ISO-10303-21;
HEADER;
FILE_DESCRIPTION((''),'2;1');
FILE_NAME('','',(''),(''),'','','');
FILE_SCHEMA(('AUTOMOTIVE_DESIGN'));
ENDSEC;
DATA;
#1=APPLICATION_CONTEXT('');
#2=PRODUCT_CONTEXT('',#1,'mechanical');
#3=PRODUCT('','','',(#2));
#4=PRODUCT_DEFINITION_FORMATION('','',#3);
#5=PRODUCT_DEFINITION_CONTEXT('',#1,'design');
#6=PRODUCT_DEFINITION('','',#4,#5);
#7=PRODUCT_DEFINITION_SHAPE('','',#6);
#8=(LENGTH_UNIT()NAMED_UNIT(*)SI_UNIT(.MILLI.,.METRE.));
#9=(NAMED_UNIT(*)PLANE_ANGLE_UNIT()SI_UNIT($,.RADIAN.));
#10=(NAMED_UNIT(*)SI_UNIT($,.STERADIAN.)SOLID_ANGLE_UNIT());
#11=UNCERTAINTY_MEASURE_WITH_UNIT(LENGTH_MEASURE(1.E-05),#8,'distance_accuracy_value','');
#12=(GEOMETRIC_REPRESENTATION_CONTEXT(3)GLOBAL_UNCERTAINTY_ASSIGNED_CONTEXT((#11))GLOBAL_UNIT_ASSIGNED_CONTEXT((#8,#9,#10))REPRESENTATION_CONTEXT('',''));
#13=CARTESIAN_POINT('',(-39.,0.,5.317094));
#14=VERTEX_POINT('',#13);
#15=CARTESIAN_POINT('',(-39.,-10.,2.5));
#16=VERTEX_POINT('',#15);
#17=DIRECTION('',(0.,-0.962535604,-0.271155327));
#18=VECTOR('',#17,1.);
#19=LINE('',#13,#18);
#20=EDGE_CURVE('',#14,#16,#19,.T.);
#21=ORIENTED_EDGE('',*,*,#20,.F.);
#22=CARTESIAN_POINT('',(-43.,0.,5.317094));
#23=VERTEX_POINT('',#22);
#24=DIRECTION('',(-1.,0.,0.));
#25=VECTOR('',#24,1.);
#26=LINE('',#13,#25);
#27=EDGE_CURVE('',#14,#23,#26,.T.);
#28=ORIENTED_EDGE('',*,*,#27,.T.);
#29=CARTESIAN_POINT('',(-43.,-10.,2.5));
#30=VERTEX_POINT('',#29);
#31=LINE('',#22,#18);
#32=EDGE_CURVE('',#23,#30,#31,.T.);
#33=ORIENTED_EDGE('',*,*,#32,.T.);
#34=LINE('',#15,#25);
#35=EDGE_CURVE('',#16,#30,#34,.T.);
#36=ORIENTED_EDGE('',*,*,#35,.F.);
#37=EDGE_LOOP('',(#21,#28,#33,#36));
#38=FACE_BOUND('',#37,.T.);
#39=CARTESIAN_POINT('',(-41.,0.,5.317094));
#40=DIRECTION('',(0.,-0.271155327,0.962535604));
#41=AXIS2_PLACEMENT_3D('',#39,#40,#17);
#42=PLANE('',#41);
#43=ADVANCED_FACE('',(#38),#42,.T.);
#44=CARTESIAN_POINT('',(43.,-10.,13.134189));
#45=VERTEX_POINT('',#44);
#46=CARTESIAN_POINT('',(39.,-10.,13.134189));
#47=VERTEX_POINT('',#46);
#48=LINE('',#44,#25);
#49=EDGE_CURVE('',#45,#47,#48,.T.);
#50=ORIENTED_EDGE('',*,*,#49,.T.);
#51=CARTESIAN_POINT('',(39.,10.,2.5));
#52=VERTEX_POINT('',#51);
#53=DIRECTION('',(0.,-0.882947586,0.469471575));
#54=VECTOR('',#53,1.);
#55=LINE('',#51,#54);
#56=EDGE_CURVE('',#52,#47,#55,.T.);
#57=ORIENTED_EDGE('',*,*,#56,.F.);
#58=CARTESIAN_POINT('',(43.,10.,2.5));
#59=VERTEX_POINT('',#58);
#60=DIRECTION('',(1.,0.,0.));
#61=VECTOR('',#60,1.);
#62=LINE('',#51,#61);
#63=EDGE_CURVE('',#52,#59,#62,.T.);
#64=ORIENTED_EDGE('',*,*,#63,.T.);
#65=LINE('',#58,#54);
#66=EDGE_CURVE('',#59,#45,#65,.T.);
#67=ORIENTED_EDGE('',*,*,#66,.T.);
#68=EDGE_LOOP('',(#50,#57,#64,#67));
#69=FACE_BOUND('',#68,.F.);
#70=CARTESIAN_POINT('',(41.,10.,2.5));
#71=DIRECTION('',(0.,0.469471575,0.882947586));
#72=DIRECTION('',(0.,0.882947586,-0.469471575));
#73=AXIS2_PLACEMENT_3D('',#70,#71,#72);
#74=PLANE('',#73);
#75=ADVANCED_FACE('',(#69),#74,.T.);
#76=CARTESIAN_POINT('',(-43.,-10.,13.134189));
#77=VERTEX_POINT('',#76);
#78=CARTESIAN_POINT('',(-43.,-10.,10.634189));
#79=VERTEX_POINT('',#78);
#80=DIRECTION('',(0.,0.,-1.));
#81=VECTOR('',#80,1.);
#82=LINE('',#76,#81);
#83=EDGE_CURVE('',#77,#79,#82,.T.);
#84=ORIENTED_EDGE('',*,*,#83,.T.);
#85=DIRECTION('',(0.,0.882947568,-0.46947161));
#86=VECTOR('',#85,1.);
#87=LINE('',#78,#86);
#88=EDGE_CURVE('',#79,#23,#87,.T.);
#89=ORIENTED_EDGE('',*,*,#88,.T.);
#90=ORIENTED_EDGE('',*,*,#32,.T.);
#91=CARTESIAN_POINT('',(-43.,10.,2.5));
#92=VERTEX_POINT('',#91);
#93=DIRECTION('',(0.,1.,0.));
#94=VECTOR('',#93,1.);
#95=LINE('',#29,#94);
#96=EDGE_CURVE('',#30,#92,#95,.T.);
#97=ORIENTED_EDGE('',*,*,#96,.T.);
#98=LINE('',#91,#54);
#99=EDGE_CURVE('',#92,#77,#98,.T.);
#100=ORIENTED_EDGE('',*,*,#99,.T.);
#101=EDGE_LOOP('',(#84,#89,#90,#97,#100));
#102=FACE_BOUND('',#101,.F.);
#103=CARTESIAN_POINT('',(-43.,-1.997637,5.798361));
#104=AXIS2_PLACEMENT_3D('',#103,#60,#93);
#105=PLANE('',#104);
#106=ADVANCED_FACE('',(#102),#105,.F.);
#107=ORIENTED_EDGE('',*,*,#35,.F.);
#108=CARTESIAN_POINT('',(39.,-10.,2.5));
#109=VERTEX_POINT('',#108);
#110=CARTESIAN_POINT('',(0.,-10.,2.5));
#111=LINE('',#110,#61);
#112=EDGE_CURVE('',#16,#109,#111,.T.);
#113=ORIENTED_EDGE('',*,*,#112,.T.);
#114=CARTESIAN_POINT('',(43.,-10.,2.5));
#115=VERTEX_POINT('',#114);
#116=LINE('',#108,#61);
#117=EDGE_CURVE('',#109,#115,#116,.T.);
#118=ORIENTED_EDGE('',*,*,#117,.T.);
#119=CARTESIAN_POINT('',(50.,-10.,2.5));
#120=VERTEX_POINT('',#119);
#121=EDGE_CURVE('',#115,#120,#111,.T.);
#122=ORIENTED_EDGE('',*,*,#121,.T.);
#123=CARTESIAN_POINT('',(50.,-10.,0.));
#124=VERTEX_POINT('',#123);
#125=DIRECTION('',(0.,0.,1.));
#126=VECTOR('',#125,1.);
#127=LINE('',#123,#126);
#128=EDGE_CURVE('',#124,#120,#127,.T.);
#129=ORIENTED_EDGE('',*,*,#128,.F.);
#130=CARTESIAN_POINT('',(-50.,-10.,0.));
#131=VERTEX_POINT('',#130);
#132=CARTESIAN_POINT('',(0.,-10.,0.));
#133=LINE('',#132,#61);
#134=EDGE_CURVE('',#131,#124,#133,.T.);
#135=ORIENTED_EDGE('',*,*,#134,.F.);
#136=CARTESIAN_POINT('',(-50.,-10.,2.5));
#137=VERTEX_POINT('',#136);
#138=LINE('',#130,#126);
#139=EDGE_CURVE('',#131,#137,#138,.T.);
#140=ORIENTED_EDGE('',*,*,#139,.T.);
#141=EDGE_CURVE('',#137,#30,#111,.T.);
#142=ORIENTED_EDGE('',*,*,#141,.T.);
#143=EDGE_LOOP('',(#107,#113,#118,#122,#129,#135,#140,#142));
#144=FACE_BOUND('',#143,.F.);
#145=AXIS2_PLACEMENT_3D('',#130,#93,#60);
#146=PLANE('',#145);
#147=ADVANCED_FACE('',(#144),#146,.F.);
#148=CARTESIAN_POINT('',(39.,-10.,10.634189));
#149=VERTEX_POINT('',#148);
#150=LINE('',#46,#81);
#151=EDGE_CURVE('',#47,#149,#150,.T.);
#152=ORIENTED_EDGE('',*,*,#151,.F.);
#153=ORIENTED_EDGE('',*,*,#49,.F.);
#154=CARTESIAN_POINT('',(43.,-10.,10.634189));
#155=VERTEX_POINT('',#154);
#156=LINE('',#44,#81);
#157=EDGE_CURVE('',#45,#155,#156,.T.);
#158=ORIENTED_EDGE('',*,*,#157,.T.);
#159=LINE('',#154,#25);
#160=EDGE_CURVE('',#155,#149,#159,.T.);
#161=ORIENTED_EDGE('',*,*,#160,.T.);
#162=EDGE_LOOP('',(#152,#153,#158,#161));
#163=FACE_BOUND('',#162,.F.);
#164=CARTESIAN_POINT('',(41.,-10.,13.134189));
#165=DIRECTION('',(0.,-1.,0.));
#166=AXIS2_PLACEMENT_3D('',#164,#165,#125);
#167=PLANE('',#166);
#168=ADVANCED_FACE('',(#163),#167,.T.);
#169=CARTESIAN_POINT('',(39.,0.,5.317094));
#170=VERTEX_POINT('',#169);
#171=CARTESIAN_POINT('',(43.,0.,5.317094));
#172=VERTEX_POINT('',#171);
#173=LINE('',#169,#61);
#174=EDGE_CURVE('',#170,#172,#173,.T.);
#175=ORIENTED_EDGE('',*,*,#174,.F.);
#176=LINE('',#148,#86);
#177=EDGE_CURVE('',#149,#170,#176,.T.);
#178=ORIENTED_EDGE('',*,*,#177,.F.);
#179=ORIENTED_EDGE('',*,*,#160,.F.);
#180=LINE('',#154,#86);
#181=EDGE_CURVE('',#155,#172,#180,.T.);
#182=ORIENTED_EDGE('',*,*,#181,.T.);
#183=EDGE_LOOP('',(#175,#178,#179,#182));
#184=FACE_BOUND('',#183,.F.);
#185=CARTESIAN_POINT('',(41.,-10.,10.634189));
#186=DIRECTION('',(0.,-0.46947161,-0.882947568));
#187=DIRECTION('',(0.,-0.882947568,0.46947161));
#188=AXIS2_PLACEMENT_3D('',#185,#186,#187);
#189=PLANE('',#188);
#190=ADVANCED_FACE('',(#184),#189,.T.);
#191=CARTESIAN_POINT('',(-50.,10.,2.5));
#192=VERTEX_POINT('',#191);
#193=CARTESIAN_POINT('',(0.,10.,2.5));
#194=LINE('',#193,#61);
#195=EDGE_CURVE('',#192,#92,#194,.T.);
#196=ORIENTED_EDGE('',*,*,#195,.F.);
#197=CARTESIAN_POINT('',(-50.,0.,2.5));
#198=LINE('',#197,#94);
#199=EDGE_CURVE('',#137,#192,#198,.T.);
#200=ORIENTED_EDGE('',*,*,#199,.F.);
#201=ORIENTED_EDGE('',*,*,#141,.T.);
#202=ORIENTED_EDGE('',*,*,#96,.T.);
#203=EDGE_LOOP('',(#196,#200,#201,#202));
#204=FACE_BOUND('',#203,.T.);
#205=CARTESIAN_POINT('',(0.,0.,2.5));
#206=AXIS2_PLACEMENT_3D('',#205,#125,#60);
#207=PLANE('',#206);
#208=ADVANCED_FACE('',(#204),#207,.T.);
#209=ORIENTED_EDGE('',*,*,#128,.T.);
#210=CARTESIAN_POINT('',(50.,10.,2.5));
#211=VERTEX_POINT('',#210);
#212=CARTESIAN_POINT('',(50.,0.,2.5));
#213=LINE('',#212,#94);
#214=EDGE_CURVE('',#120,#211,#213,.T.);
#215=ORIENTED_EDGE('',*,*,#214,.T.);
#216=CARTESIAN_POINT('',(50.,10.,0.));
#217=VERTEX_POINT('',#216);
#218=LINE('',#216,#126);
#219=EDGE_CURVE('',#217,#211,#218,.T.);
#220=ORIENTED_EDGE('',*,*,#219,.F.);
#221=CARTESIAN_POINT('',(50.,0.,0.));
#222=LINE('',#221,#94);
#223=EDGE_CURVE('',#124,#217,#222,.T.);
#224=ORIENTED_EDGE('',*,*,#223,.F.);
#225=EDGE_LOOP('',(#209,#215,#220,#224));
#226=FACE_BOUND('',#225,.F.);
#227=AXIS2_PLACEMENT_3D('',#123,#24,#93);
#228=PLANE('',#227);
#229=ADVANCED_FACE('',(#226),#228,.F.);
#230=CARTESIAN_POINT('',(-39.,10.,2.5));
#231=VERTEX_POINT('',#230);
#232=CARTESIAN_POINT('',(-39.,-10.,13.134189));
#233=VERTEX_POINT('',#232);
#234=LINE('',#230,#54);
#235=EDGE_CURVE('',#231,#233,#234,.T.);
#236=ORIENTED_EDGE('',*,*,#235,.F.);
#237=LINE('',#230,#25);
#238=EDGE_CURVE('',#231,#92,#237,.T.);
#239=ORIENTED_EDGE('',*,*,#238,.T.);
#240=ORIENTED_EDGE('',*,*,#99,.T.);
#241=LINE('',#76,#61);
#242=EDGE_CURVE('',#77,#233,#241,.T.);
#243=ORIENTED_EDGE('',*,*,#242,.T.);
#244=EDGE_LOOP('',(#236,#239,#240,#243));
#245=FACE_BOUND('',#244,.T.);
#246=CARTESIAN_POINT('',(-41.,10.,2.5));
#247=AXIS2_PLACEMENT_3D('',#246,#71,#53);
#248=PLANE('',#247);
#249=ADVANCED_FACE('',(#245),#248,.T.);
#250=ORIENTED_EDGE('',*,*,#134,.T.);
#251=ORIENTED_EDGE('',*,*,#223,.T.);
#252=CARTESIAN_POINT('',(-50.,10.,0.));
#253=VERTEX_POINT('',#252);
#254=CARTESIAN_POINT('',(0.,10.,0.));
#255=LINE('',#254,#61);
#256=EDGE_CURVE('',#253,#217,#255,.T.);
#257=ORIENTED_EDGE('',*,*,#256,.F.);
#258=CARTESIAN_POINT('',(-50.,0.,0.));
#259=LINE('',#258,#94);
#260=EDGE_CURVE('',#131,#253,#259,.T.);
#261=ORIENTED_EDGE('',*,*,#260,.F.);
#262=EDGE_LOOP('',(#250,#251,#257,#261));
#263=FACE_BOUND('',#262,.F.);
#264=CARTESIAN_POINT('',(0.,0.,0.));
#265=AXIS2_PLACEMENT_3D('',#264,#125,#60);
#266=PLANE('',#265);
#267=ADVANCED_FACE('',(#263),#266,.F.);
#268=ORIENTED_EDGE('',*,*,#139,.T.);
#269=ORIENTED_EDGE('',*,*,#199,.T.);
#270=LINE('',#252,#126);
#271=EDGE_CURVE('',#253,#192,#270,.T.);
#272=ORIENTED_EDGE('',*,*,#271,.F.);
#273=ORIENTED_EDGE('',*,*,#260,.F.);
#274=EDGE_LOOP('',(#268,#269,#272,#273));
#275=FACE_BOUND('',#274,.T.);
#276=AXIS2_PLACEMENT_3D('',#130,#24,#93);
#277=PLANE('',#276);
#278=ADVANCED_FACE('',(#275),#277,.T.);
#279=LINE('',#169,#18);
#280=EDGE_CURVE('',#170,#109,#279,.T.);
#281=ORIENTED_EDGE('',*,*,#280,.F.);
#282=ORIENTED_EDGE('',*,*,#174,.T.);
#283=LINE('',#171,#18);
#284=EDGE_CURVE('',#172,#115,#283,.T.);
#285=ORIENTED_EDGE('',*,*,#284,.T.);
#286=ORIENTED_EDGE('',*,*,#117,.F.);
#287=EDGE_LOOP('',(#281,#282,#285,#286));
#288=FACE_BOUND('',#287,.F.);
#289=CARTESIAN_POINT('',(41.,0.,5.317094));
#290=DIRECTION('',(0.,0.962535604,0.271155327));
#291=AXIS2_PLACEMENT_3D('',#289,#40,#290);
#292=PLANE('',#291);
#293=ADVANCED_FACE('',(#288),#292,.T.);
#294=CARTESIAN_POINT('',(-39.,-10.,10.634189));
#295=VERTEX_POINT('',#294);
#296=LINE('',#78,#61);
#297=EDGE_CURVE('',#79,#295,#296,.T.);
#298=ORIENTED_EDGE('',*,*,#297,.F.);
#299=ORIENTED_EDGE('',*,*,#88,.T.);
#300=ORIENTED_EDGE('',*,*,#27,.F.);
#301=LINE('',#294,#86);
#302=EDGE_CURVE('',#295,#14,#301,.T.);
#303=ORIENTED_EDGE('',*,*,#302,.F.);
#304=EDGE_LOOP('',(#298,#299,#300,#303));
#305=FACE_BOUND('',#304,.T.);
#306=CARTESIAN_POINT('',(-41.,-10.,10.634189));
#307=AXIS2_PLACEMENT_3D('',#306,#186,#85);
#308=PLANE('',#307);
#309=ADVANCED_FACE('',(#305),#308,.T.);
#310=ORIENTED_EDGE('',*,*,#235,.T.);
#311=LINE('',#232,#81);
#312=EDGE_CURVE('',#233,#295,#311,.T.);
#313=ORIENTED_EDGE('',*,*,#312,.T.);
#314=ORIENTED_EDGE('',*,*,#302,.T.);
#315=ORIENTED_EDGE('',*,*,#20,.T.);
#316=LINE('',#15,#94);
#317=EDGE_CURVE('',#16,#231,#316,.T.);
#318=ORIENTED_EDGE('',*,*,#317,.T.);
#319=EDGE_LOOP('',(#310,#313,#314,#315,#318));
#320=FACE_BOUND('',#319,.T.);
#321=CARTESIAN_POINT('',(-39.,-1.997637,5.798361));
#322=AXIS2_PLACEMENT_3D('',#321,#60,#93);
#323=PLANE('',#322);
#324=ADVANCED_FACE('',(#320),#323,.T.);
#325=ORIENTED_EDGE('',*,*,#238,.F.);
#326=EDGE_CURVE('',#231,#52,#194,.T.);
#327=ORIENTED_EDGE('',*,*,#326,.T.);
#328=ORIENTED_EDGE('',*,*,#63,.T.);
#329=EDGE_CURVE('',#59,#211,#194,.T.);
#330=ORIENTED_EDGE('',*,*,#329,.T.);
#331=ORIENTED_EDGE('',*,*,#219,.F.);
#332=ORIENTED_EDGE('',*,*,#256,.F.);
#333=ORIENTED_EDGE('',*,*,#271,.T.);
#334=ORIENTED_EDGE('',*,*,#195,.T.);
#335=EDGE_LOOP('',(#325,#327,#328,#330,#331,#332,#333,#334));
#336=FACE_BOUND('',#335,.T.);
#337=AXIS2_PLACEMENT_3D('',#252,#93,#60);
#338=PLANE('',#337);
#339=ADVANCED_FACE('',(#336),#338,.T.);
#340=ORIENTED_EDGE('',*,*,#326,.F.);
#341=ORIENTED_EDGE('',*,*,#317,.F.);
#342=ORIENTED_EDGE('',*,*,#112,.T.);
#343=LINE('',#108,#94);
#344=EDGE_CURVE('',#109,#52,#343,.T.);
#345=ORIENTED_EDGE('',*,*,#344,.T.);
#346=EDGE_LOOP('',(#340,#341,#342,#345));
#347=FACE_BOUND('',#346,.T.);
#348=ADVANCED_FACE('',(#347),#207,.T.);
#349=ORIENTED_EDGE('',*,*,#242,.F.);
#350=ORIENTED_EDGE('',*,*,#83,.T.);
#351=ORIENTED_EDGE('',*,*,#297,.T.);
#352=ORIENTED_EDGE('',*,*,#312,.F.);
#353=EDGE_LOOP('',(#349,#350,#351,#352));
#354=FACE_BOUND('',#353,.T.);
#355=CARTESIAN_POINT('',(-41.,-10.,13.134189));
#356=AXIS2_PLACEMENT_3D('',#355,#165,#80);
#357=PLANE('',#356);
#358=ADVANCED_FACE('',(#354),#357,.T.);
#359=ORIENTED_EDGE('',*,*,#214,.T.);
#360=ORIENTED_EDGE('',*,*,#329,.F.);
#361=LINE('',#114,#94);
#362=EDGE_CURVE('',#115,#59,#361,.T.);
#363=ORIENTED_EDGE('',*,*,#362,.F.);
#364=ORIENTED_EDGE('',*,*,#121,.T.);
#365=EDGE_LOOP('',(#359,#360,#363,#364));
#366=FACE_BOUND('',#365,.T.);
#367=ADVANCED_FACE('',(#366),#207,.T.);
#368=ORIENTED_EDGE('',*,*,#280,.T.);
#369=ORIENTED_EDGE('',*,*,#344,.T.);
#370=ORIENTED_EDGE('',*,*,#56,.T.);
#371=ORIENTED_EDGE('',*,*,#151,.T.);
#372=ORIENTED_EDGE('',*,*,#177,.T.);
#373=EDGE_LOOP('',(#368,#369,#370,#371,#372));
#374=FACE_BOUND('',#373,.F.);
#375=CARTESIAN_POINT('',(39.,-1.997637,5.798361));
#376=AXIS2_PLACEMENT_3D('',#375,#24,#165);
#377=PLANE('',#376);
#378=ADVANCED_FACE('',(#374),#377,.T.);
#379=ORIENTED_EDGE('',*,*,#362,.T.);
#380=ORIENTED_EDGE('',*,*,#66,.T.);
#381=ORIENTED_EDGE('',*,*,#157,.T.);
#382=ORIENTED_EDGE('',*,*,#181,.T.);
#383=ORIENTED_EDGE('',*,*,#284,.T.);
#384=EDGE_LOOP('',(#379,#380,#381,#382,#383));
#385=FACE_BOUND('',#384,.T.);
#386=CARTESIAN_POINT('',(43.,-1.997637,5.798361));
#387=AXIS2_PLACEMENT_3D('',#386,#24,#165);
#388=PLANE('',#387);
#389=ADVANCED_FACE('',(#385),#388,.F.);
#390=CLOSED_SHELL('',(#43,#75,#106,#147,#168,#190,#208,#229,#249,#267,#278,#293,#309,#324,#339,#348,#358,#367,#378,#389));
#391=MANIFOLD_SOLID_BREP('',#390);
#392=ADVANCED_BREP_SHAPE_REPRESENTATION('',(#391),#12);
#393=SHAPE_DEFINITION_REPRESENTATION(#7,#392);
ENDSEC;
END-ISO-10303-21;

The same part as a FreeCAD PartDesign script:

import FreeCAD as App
import Part
import Sketcher
from FreeCAD import Vector
Q = App.Units.Quantity

doc = App.newDocument("Part")
params = doc.addObject("Spreadsheet::Sheet", "Params")
for row, (alias, value) in enumerate([
    ("sketch1_width", "100 mm"),
    ("sketch1_height", "20 mm"),
    ("pad1_length", "2.5 mm"),
    ("sketch2_width", "20 mm"),
    ("sketch2_height", "2.5 mm"),
    ("pad2_length", "4 mm"),
], start=1):
    params.set(f"A{row}", alias)
    params.set(f"B{row}", "=" + value)
    params.setAlias(f"B{row}", alias)

body = doc.addObject("PartDesign::Body", "Body")

sketch1 = doc.addObject("Sketcher::SketchObject", "Sketch")
body.addObject(sketch1)
sketch1.AttachmentSupport = (doc.XY_Plane, [""])
sketch1.MapMode = "FlatFace"
sketch1.addGeometry([
    Part.LineSegment(Vector(-50, 10, 0), Vector(-50, -10, 0)),
    Part.LineSegment(Vector(-50, -10, 0), Vector(50, -10, 0)),
    Part.LineSegment(Vector(50, -10, 0), Vector(50, 10, 0)),
    Part.LineSegment(Vector(50, 10, 0), Vector(-50, 10, 0)),
], False)
sketch1.addConstraint([
    Sketcher.Constraint("Coincident", 0, 2, 1, 1),
    Sketcher.Constraint("Coincident", 1, 2, 2, 1),
    Sketcher.Constraint("Coincident", 2, 2, 3, 1),
    Sketcher.Constraint("Coincident", 3, 2, 0, 1),
    Sketcher.Constraint("Vertical", 0),
    Sketcher.Constraint("Horizontal", 1),
    Sketcher.Constraint("Vertical", 2),
    Sketcher.Constraint("Horizontal", 3),
    Sketcher.Constraint("Symmetric", 0, 2, 2, 2, -1, 1),
    Sketcher.Constraint("DistanceX", 1, 1, 1, 2, Q("100 mm")),
    Sketcher.Constraint("DistanceY", 0, 2, 0, 1, Q("20 mm")),
])
sketch1.setExpression("Constraints[9]", "Params.sketch1_width")
sketch1.setExpression("Constraints[10]", "Params.sketch1_height")
pad1 = doc.addObject("PartDesign::Pad", "Pad")
body.addObject(pad1)
pad1.Profile = sketch1
pad1.setExpression("Length", "Params.pad1_length")

sketch2 = doc.addObject("Sketcher::SketchObject", "Sketch001")
body.addObject(sketch2)
sketch2.AttachmentSupport = (doc.YZ_Plane, [""])
sketch2.MapMode = "FlatFace"
sketch2.AttachmentOffset = App.Placement(Vector(0, 0, -41), App.Rotation())
sketch2.addGeometry([
    Part.LineSegment(Vector(10, 2.5, 0), Vector(-10, 13.1, 0)),
    Part.LineSegment(Vector(-10, 13.1, 0), Vector(-10, 10.6, 0)),
    Part.LineSegment(Vector(-10, 10.6, 0), Vector(0, 5.3, 0)),
    Part.LineSegment(Vector(0, 5.3, 0), Vector(-10, 2.5, 0)),
    Part.LineSegment(Vector(-10, 2.5, 0), Vector(10, 2.5, 0)),
], False)
sketch2.addConstraint([
    Sketcher.Constraint("Coincident", 0, 2, 1, 1),
    Sketcher.Constraint("Coincident", 1, 2, 2, 1),
    Sketcher.Constraint("Coincident", 2, 2, 3, 1),
    Sketcher.Constraint("Coincident", 3, 2, 4, 1),
    Sketcher.Constraint("Coincident", 4, 2, 0, 1),
    Sketcher.Constraint("Vertical", 1),
    Sketcher.Constraint("Horizontal", 4),
    Sketcher.Constraint("PointOnObject", 2, 2, -2),
    Sketcher.Constraint("Parallel", 0, 2),
    Sketcher.Constraint("Vertical", 1, 2, 3, 2),
    Sketcher.Constraint("DistanceX", 4, 1, 4, 2, Q("20 mm")),
    Sketcher.Constraint("Angle", 0, Q("151.999999 deg")),
    Sketcher.Constraint("DistanceY", 1, 2, 1, 1, Q("2.5 mm")),
    Sketcher.Constraint("DistanceX", 0, 2, -1, 1, Q("10 mm")),
    Sketcher.Constraint("DistanceY", -1, 1, 3, 2, Q("2.5 mm")),
])
sketch2.setExpression("Constraints[10]", "Params.sketch2_width")
sketch2.setExpression("Constraints[12]", "Params.sketch2_height")
pad2 = doc.addObject("PartDesign::Pad", "Pad001")
body.addObject(pad2)
pad2.Profile = sketch2
pad2.setExpression("Length", "Params.pad2_length")
pad2.Midplane = True
doc.recompute()

mirrored = doc.addObject("PartDesign::Mirrored", "Mirrored")
body.addObject(mirrored)
mirrored.Originals = [pad2]
mirrored.MirrorPlane = (doc.YZ_Plane, [""])
body.Tip = mirrored

doc.recompute()
